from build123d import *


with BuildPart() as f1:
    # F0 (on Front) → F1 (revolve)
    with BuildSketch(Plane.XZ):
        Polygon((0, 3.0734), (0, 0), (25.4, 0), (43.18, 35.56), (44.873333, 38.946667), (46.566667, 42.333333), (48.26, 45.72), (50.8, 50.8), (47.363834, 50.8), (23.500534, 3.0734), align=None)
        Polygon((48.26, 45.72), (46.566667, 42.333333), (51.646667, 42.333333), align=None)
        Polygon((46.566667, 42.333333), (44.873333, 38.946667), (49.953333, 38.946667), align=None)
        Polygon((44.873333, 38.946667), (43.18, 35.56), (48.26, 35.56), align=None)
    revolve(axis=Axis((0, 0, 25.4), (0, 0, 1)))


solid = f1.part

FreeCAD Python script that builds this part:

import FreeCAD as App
import Part
import Sketcher
from FreeCAD import Vector
Q = App.Units.Quantity


def add_polygon(sketch, points):
    """Adds a closed chain of lines whose ends are joined by coincident constraints."""
    first, n = sketch.GeometryCount, len(points)
    for a, b in zip(points, points[1:] + points[:1]):
        sketch.addGeometry(Part.LineSegment(App.Vector(*a, 0), App.Vector(*b, 0)), False)
    for i in range(n):
        sketch.addConstraint(Sketcher.Constraint("Coincident", first + i, 2, first + (i + 1) % n, 1))

doc = App.newDocument("Part")
params = doc.addObject("Spreadsheet::Sheet", "Params")
for row, (alias, value) in enumerate([
    ("sketch1_width", "1 in"),
    ("sketch1_width2", "0.2 in"),
    ("sketch1_height", "0.121 in"),
    ("revolution_angle", "360 deg"),
], start=1):
    params.set(f"A{row}", alias)
    params.set(f"B{row}", "=" + value)
    params.setAlias(f"B{row}", alias)

body = doc.addObject("PartDesign::Body", "Body")

# Sketch on XZ plane
sketch1 = doc.addObject("Sketcher::SketchObject", "Sketch")
body.addObject(sketch1)
sketch1.AttachmentSupport = (doc.XZ_Plane, [""])
sketch1.MapMode = "FlatFace"
add_polygon(sketch1, [(0, 3.0734), (0, 0), (25.4, 0), (43.18, 35.56), (48.26, 35.56), (44.873333, 38.946667), (49.953333, 38.946667), (46.566667, 42.333333), (51.646667, 42.333333), (48.26, 45.72), (50.8, 50.8), (47.363834, 50.8), (23.500534, 3.0734)])  # lines 0-12
sketch1.addConstraint(Sketcher.Constraint("Vertical", 0))
sketch1.addConstraint(Sketcher.Constraint("Horizontal", 1))
sketch1.addConstraint(Sketcher.Constraint("Horizontal", 3))
sketch1.addConstraint(Sketcher.Constraint("Horizontal", 5))
sketch1.addConstraint(Sketcher.Constraint("Horizontal", 7))
sketch1.addConstraint(Sketcher.Constraint("Horizontal", 10))
sketch1.addConstraint(Sketcher.Constraint("Horizontal", 12))
sketch1.addConstraint(Sketcher.Constraint("Coincident", 0, 2, -1, 1))
sketch1.addConstraint(Sketcher.Constraint("Parallel", 4, 6))
sketch1.addConstraint(Sketcher.Constraint("Parallel", 6, 8))
sketch1.addConstraint(Sketcher.Constraint("Parallel", 2, 9))
sketch1.addConstraint(Sketcher.Constraint("Parallel", 9, 11))
sketch1.addConstraint(Sketcher.Constraint("Vertical", 3, 2, 8, 2))
sketch1.addConstraint(Sketcher.Constraint("Equal", 3, 5))
sketch1.addConstraint(Sketcher.Constraint("Equal", 5, 7))
sketch1.addConstraint(Sketcher.Constraint("Equal", 4, 6))
sketch1.addConstraint(Sketcher.Constraint("Equal", 6, 8))
sketch1.addConstraint(Sketcher.Constraint("DistanceX", 1, 1, 1, 2, Q("1 in")))
sketch1.addConstraint(Sketcher.Constraint("DistanceX", 3, 1, 3, 2, Q("0.2 in")))
sketch1.addConstraint(Sketcher.Constraint("DistanceX", -1, 1, 9, 2, Q("2 in")))
sketch1.addConstraint(Sketcher.Constraint("DistanceY", -1, 1, 9, 2, Q("2 in")))
sketch1.addConstraint(Sketcher.Constraint("Angle", 4, Q("135 deg")))
sketch1.addConstraint(Sketcher.Constraint("DistanceX", -1, 1, 2, 2, Q("1.7 in")))
sketch1.addConstraint(Sketcher.Constraint("DistanceY", 0, 2, 0, 1, Q("0.121 in")))
sketch1.addConstraint(Sketcher.Constraint("DistanceX", 4, 2, 10, 2, Q("2.490501 mm")))
sketch1.setExpression("Constraints[30]", "Params.sketch1_width")
sketch1.setExpression("Constraints[31]", "Params.sketch1_width2")
sketch1.setExpression("Constraints[36]", "Params.sketch1_height")
revolution = doc.addObject("PartDesign::Revolution", "Revolution")
body.addObject(revolution)
revolution.Profile = sketch1
revolution.ReferenceAxis = (sketch1, ["V_Axis"])
revolution.setExpression("Angle", "Params.revolution_angle")

doc.recompute()
